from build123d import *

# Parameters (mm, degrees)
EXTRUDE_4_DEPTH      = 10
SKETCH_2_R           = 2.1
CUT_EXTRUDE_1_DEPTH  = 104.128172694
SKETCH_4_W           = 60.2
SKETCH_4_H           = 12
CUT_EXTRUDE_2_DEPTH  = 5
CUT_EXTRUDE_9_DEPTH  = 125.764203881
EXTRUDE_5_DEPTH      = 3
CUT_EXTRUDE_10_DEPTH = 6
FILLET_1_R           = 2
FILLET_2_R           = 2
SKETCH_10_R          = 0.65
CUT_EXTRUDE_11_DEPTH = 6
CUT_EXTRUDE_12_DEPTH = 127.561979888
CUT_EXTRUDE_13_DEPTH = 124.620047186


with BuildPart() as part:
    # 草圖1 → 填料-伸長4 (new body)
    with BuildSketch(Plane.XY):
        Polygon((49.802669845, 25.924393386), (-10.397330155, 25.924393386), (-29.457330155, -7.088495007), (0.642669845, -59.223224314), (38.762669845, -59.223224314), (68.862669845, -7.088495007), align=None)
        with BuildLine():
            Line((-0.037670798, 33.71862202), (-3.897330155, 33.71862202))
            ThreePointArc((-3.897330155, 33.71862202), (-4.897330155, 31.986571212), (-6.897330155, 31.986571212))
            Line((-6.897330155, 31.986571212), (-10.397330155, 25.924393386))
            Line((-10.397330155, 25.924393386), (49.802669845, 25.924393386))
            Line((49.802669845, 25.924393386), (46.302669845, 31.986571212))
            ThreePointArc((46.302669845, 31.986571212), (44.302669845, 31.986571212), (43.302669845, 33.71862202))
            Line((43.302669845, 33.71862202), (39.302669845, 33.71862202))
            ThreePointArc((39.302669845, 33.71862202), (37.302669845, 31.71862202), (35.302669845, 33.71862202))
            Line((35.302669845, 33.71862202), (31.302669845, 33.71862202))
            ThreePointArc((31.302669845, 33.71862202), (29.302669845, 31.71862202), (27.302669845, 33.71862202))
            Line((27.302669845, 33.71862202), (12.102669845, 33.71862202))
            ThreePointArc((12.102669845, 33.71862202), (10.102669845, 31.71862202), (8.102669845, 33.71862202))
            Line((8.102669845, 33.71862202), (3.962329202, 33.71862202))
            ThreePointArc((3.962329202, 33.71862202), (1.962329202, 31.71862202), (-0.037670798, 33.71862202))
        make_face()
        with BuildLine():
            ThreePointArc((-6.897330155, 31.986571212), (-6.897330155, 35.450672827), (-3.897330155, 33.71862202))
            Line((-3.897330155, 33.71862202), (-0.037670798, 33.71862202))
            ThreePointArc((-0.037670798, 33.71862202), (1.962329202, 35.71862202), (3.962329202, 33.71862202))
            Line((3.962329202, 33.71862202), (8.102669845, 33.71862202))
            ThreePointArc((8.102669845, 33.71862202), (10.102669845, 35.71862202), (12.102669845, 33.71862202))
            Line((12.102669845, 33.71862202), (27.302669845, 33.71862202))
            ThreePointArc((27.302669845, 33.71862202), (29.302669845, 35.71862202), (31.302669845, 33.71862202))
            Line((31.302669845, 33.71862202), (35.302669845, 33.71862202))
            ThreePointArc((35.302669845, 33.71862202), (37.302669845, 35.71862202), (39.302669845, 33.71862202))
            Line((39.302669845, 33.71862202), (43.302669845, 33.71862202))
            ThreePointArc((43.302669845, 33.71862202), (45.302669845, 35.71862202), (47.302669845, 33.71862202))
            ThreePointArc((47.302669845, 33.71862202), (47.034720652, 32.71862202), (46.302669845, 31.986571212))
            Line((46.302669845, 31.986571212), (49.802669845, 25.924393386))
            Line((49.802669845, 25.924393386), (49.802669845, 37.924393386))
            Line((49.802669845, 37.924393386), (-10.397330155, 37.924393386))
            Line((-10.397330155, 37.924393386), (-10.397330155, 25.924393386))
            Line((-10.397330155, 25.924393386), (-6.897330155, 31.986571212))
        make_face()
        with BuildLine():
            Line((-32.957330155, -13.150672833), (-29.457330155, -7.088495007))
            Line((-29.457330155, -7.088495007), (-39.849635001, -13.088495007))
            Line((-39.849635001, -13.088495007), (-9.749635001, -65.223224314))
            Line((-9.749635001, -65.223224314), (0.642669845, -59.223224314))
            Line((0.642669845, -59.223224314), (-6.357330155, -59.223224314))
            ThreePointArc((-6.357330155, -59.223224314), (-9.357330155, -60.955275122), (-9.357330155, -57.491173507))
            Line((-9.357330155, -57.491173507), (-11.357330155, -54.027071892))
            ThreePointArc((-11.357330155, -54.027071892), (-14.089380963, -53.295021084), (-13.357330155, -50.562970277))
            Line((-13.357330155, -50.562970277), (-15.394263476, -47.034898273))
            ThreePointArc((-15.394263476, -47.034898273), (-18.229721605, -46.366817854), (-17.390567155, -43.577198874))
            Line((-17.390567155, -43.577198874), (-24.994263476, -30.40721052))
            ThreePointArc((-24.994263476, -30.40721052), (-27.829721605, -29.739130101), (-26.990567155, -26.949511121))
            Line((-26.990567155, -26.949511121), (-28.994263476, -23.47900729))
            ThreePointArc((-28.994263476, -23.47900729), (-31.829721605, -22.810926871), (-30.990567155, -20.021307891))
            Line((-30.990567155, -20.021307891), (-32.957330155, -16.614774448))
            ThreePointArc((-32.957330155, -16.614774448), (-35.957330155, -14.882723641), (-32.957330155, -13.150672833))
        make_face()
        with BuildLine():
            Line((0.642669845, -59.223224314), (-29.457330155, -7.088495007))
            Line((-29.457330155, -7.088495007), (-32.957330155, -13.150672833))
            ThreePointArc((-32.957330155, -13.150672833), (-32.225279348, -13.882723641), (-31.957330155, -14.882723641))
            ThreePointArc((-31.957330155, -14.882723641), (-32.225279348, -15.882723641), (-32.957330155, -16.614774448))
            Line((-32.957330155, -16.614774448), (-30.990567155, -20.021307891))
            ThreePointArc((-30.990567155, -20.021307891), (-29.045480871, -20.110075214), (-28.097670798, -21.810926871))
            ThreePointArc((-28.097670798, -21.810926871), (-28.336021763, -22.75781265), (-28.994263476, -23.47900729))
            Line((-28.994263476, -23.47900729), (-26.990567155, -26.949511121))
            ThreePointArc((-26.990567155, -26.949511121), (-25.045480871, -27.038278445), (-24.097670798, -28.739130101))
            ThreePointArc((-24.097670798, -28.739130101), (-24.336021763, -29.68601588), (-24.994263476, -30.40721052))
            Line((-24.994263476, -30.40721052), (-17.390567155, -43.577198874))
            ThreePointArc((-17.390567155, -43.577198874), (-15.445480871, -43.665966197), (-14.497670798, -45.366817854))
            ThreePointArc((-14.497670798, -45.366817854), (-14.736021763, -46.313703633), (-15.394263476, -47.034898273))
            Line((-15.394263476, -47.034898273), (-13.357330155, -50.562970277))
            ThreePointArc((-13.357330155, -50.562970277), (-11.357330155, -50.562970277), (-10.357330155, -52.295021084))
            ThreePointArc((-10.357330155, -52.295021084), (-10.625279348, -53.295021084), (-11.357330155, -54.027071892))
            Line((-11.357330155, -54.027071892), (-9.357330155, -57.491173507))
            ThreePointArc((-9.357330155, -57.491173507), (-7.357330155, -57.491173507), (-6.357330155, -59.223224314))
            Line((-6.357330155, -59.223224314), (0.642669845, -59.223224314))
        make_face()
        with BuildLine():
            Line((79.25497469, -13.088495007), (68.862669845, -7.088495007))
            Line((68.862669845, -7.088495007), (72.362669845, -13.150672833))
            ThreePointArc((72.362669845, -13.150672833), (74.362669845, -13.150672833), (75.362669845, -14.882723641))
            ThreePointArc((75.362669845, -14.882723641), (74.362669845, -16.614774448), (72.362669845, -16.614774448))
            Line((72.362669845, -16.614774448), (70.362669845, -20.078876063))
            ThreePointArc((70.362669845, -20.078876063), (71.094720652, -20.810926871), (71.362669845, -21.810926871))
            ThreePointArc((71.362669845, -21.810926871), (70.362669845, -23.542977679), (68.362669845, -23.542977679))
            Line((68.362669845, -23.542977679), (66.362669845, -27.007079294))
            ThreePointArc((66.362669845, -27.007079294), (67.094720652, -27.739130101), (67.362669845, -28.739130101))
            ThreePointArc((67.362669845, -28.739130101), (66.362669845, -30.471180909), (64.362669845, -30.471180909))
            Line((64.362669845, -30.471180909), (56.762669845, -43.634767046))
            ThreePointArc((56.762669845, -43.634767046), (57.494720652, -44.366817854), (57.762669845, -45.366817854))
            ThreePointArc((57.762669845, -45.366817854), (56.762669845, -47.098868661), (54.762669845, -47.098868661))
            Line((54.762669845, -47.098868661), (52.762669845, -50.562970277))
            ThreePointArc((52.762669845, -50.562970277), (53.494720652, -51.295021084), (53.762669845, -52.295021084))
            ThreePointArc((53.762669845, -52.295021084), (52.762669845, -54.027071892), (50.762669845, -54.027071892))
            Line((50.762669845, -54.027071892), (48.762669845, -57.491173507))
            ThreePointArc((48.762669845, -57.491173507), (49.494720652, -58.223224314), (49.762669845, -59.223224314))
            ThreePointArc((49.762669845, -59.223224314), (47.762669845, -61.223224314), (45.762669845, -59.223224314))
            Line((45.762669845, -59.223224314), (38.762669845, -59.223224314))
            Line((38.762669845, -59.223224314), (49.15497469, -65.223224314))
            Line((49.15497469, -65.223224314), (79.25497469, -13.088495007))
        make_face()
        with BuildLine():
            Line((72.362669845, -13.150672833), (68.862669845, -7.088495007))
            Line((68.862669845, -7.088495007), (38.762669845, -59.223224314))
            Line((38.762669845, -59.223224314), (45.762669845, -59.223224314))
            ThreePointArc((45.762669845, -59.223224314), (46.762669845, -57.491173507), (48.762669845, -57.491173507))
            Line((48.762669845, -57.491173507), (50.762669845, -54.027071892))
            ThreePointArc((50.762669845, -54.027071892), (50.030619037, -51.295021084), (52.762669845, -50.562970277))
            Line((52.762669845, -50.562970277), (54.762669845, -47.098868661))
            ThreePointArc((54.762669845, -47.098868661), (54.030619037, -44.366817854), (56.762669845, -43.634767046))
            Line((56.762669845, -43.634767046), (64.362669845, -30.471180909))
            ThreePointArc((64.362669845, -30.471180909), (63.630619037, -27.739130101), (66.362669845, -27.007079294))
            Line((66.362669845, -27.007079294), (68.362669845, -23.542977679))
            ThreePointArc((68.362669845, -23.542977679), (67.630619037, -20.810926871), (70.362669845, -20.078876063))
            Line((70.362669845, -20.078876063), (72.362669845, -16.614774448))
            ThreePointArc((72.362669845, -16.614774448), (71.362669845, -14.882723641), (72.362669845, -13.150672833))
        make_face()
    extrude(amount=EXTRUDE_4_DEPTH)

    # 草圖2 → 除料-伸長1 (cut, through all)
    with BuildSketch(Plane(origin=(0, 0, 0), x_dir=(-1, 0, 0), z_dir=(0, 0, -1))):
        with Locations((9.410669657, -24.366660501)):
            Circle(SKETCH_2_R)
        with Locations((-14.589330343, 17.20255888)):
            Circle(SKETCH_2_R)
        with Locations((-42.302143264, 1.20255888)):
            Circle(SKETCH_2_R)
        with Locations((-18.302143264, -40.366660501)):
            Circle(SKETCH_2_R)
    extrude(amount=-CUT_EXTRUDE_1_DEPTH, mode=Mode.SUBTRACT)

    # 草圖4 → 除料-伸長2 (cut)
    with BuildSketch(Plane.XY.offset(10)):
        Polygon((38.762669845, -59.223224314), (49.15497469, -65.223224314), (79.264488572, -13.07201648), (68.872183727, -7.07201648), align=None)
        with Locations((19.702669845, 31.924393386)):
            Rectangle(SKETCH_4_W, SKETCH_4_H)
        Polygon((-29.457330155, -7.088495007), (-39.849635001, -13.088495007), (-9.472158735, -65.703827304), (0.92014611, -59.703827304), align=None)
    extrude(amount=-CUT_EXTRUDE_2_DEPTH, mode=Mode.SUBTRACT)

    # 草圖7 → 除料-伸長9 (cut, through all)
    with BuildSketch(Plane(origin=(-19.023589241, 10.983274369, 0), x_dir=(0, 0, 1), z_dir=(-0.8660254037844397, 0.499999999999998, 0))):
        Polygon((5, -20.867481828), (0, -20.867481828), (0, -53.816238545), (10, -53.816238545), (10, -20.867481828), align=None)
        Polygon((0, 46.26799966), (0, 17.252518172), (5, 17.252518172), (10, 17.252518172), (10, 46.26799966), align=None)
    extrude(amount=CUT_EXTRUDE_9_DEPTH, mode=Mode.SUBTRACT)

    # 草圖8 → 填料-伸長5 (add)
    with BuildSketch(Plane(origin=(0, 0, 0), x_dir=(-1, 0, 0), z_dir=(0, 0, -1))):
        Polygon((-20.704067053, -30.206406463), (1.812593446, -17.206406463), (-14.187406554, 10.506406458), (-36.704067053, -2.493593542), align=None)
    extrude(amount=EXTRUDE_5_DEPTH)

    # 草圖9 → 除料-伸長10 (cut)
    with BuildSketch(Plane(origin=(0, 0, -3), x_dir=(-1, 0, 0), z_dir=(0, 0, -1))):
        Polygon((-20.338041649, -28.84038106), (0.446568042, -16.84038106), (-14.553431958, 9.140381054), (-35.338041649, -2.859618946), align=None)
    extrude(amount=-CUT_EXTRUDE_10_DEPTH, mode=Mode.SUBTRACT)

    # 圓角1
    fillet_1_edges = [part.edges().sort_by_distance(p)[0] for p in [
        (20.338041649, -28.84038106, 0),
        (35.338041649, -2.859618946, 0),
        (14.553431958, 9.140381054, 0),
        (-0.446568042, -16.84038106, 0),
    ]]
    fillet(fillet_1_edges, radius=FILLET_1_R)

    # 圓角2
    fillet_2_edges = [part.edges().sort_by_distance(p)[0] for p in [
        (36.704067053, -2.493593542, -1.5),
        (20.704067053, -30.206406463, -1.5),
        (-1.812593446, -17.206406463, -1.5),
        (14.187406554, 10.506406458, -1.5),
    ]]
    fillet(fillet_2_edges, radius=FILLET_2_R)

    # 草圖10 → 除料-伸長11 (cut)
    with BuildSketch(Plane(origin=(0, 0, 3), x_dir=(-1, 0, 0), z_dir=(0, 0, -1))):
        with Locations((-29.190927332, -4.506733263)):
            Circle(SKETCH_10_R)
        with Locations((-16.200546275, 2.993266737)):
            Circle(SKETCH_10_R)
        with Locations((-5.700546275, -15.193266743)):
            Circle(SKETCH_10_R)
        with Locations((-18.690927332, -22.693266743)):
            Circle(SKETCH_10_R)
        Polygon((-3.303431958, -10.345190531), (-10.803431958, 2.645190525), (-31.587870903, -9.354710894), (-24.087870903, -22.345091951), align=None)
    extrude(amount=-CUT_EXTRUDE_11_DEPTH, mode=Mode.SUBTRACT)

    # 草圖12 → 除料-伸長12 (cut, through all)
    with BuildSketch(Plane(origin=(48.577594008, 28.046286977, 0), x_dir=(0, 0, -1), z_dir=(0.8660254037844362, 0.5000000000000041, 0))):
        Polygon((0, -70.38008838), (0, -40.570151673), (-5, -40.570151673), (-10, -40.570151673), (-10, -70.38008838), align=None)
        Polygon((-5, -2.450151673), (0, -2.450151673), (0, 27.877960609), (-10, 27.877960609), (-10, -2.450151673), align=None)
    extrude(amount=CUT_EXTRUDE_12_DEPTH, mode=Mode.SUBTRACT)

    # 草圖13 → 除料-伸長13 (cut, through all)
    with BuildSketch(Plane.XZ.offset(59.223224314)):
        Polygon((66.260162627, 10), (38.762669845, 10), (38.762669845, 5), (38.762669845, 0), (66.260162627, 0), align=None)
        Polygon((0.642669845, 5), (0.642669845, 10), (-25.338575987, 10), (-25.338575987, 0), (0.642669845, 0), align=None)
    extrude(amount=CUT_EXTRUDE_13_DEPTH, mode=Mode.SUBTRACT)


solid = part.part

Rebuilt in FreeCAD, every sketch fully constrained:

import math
import FreeCAD as App
import Part
import Sketcher
Q = App.Units.Quantity


def edges_at(feature, points):
    """Names of the edges that pass closest to the given points."""
    edges = feature.Shape.Edges
    near = lambda p: min(range(len(edges)), key=lambda i: edges[i].distToShape(Part.Vertex(*p))[0])
    return sorted({f"Edge{near(p) + 1}" for p in points})


def add_polygon(sketch, points):
    """Adds a closed chain of lines whose ends are joined by coincident constraints."""
    first, n = sketch.GeometryCount, len(points)
    for a, b in zip(points, points[1:] + points[:1]):
        sketch.addGeometry(Part.LineSegment(App.Vector(*a, 0), App.Vector(*b, 0)), False)
    for i in range(n):
        sketch.addConstraint(Sketcher.Constraint("Coincident", first + i, 2, first + (i + 1) % n, 1))

doc = App.newDocument("Part")
body = doc.addObject("PartDesign::Body", "Body")

sketch1 = body.newObject("Sketcher::SketchObject", "Sketch")
sketch1.AttachmentSupport = (doc.getObject("XY_Plane"), [""])
sketch1.MapMode = "FlatFace"
add_polygon(sketch1, [(-10.4, 25.9), (-29.5, -7.1), (-39.8, -13.1), (-9.7, -65.2), (0.6, -59.2), (38.8, -59.2), (49.2, -65.2), (79.3, -13.1), (68.9, -7.1), (49.8, 25.9), (49.8, 37.9), (-10.4, 37.9)])
sketch1.addGeometry(Part.ArcOfCircle(Part.Circle(App.Vector(45.3, 33.7, 0), App.Vector(0, 0, 1), 2), math.radians(180), math.radians(300)), False)
sketch1.addGeometry(Part.ArcOfCircle(Part.Circle(App.Vector(45.3, 33.7, 0), App.Vector(0, 0, 1), 2), math.radians(0), math.radians(180)), False)
sketch1.addGeometry(Part.ArcOfCircle(Part.Circle(App.Vector(45.3, 33.7, 0), App.Vector(0, 0, 1), 2), math.radians(-60), math.radians(0)), False)
sketch1.addGeometry(Part.Circle(App.Vector(37.3, 33.7, 0), App.Vector(0, 0, 1), 2), False)
sketch1.addGeometry(Part.Circle(App.Vector(29.3, 33.7, 0), App.Vector(0, 0, 1), 2), False)
sketch1.addGeometry(Part.Circle(App.Vector(10.1, 33.7, 0), App.Vector(0, 0, 1), 2), False)
sketch1.addGeometry(Part.Circle(App.Vector(2, 33.7, 0), App.Vector(0, 0, 1), 2), False)
sketch1.addGeometry(Part.ArcOfCircle(Part.Circle(App.Vector(-5.9, 33.7, 0), App.Vector(0, 0, 1), 2), math.radians(-120), math.radians(0)), False)
sketch1.addGeometry(Part.ArcOfCircle(Part.Circle(App.Vector(-5.9, 33.7, 0), App.Vector(0, 0, 1), 2), math.radians(0), math.radians(240)), False)
sketch1.addGeometry(Part.ArcOfCircle(Part.Circle(App.Vector(-34, -14.9, 0), App.Vector(0, 0, 1), 2), math.radians(0), math.radians(60)), False)
sketch1.addGeometry(Part.ArcOfCircle(Part.Circle(App.Vector(-34, -14.9, 0), App.Vector(0, 0, 1), 2), math.radians(-60), math.radians(0)), False)
sketch1.addGeometry(Part.ArcOfCircle(Part.Circle(App.Vector(-34, -14.9, 0), App.Vector(0, 0, 1), 2), math.radians(60), math.radians(300)), False)
sketch1.addGeometry(Part.ArcOfCircle(Part.Circle(App.Vector(-30.1, -21.8, 0), App.Vector(0, 0, 1), 2), math.radians(0), math.radians(117)), False)
sketch1.addGeometry(Part.ArcOfCircle(Part.Circle(App.Vector(-30.1, -21.8, 0), App.Vector(0, 0, 1), 2), math.radians(-57), math.radians(0)), False)
sketch1.addGeometry(Part.ArcOfCircle(Part.Circle(App.Vector(-30.1, -21.8, 0), App.Vector(0, 0, 1), 2), math.radians(117), math.radians(303)), False)
sketch1.addGeometry(Part.ArcOfCircle(Part.Circle(App.Vector(-26.1, -28.7, 0), App.Vector(0, 0, 1), 2), math.radians(0), math.radians(117)), False)
sketch1.addGeometry(Part.ArcOfCircle(Part.Circle(App.Vector(-26.1, -28.7, 0), App.Vector(0, 0, 1), 2), math.radians(-57), math.radians(0)), False)
sketch1.addGeometry(Part.ArcOfCircle(Part.Circle(App.Vector(-26.1, -28.7, 0), App.Vector(0, 0, 1), 2), math.radians(117), math.radians(303)), False)
sketch1.addGeometry(Part.ArcOfCircle(Part.Circle(App.Vector(-16.5, -45.4, 0), App.Vector(0, 0, 1), 2), math.radians(0), math.radians(117)), False)
sketch1.addGeometry(Part.ArcOfCircle(Part.Circle(App.Vector(-16.5, -45.4, 0), App.Vector(0, 0, 1), 2), math.radians(-57), math.radians(0)), False)
sketch1.addGeometry(Part.ArcOfCircle(Part.Circle(App.Vector(-16.5, -45.4, 0), App.Vector(0, 0, 1), 2), math.radians(117), math.radians(303)), False)
sketch1.addGeometry(Part.ArcOfCircle(Part.Circle(App.Vector(-12.4, -52.3, 0), App.Vector(0, 0, 1), 2), math.radians(0), math.radians(120)), False)
sketch1.addGeometry(Part.ArcOfCircle(Part.Circle(App.Vector(-12.4, -52.3, 0), App.Vector(0, 0, 1), 2), math.radians(-60), math.radians(0)), False)
sketch1.addGeometry(Part.ArcOfCircle(Part.Circle(App.Vector(-12.4, -52.3, 0), App.Vector(0, 0, 1), 2), math.radians(120), math.radians(300)), False)
sketch1.addGeometry(Part.ArcOfCircle(Part.Circle(App.Vector(-8.4, -59.2, 0), App.Vector(0, 0, 1), 2), math.radians(0), math.radians(120)), False)
sketch1.addGeometry(Part.ArcOfCircle(Part.Circle(App.Vector(-8.4, -59.2, 0), App.Vector(0, 0, 1), 2), math.radians(120), math.radians(360)), False)
sketch1.addGeometry(Part.ArcOfCircle(Part.Circle(App.Vector(73.4, -14.9, 0), App.Vector(0, 0, 1), 2), math.radians(120), math.radians(240)), False)
sketch1.addGeometry(Part.ArcOfCircle(Part.Circle(App.Vector(73.4, -14.9, 0), App.Vector(0, 0, 1), 2), math.radians(0), math.radians(120)), False)
sketch1.addGeometry(Part.ArcOfCircle(Part.Circle(App.Vector(73.4, -14.9, 0), App.Vector(0, 0, 1), 2), math.radians(-120), math.radians(0)), False)
sketch1.addGeometry(Part.ArcOfCircle(Part.Circle(App.Vector(47.8, -59.2, 0), App.Vector(0, 0, 1), 2), math.radians(60), math.radians(180)), False)
sketch1.addGeometry(Part.ArcOfCircle(Part.Circle(App.Vector(47.8, -59.2, 0), App.Vector(0, 0, 1), 2), math.radians(0), math.radians(60)), False)
sketch1.addGeometry(Part.ArcOfCircle(Part.Circle(App.Vector(47.8, -59.2, 0), App.Vector(0, 0, 1), 2), math.radians(180), math.radians(360)), False)
sketch1.addGeometry(Part.ArcOfCircle(Part.Circle(App.Vector(51.8, -52.3, 0), App.Vector(0, 0, 1), 2), math.radians(60), math.radians(240)), False)
sketch1.addGeometry(Part.ArcOfCircle(Part.Circle(App.Vector(51.8, -52.3, 0), App.Vector(0, 0, 1), 2), math.radians(0), math.radians(60)), False)
sketch1.addGeometry(Part.ArcOfCircle(Part.Circle(App.Vector(51.8, -52.3, 0), App.Vector(0, 0, 1), 2), math.radians(-120), math.radians(0)), False)
sketch1.addGeometry(Part.ArcOfCircle(Part.Circle(App.Vector(55.8, -45.4, 0), App.Vector(0, 0, 1), 2), math.radians(60), math.radians(240)), False)
sketch1.addGeometry(Part.ArcOfCircle(Part.Circle(App.Vector(55.8, -45.4, 0), App.Vector(0, 0, 1), 2), math.radians(0), math.radians(60)), False)
sketch1.addGeometry(Part.ArcOfCircle(Part.Circle(App.Vector(55.8, -45.4, 0), App.Vector(0, 0, 1), 2), math.radians(-120), math.radians(0)), False)
sketch1.addGeometry(Part.ArcOfCircle(Part.Circle(App.Vector(65.4, -28.7, 0), App.Vector(0, 0, 1), 2), math.radians(60), math.radians(240)), False)
sketch1.addGeometry(Part.ArcOfCircle(Part.Circle(App.Vector(65.4, -28.7, 0), App.Vector(0, 0, 1), 2), math.radians(0), math.radians(60)), False)
sketch1.addGeometry(Part.ArcOfCircle(Part.Circle(App.Vector(65.4, -28.7, 0), App.Vector(0, 0, 1), 2), math.radians(-120), math.radians(0)), False)
sketch1.addGeometry(Part.ArcOfCircle(Part.Circle(App.Vector(69.4, -21.8, 0), App.Vector(0, 0, 1), 2), math.radians(60), math.radians(240)), False)
sketch1.addGeometry(Part.ArcOfCircle(Part.Circle(App.Vector(69.4, -21.8, 0), App.Vector(0, 0, 1), 2), math.radians(0), math.radians(60)), False)
sketch1.addGeometry(Part.ArcOfCircle(Part.Circle(App.Vector(69.4, -21.8, 0), App.Vector(0, 0, 1), 2), math.radians(-120), math.radians(0)), False)
sketch1.addConstraint(Sketcher.Constraint("Tangent", 12, 1, 13, 2))
sketch1.addConstraint(Sketcher.Constraint("Tangent", 13, 1, 14, 2))
sketch1.addConstraint(Sketcher.Constraint("Tangent", 14, 1, 12, 2))
sketch1.addConstraint(Sketcher.Constraint("Tangent", 19, 1, 20, 2))
sketch1.addConstraint(Sketcher.Constraint("Coincident", 20, 1, 19, 2))
sketch1.addConstraint(Sketcher.Constraint("Tangent", 21, 1, 22, 2))
sketch1.addConstraint(Sketcher.Constraint("Tangent", 22, 1, 23, 2))
sketch1.addConstraint(Sketcher.Constraint("Tangent", 23, 1, 21, 2))
sketch1.addConstraint(Sketcher.Constraint("Tangent", 24, 1, 25, 2))
sketch1.addConstraint(Sketcher.Constraint("Tangent", 25, 1, 26, 2))
sketch1.addConstraint(Sketcher.Constraint("Tangent", 26, 1, 24, 2))
sketch1.addConstraint(Sketcher.Constraint("Tangent", 27, 1, 28, 2))
sketch1.addConstraint(Sketcher.Constraint("Tangent", 28, 1, 29, 2))
sketch1.addConstraint(Sketcher.Constraint("Tangent", 29, 1, 27, 2))
sketch1.addConstraint(Sketcher.Constraint("Tangent", 30, 1, 31, 2))
sketch1.addConstraint(Sketcher.Constraint("Tangent", 31, 1, 32, 2))
sketch1.addConstraint(Sketcher.Constraint("Tangent", 32, 1, 30, 2))
sketch1.addConstraint(Sketcher.Constraint("Tangent", 33, 1, 34, 2))
sketch1.addConstraint(Sketcher.Constraint("Tangent", 34, 1, 35, 2))
sketch1.addConstraint(Sketcher.Constraint("Tangent", 35, 1, 33, 2))
sketch1.addConstraint(Sketcher.Constraint("Tangent", 36, 1, 37, 2))
sketch1.addConstraint(Sketcher.Constraint("Coincident", 37, 1, 36, 2))
sketch1.addConstraint(Sketcher.Constraint("Tangent", 38, 1, 39, 2))
sketch1.addConstraint(Sketcher.Constraint("Tangent", 39, 1, 40, 2))
sketch1.addConstraint(Sketcher.Constraint("Tangent", 40, 1, 38, 2))
sketch1.addConstraint(Sketcher.Constraint("Tangent", 41, 1, 42, 2))
sketch1.addConstraint(Sketcher.Constraint("Tangent", 42, 1, 43, 2))
sketch1.addConstraint(Sketcher.Constraint("Tangent", 43, 1, 41, 2))
sketch1.addConstraint(Sketcher.Constraint("Tangent", 44, 1, 45, 2))
sketch1.addConstraint(Sketcher.Constraint("Tangent", 45, 1, 46, 2))
sketch1.addConstraint(Sketcher.Constraint("Tangent", 46, 1, 44, 2))
sketch1.addConstraint(Sketcher.Constraint("Tangent", 47, 1, 48, 2))
sketch1.addConstraint(Sketcher.Constraint("Tangent", 48, 1, 49, 2))
sketch1.addConstraint(Sketcher.Constraint("Tangent", 49, 1, 47, 2))
sketch1.addConstraint(Sketcher.Constraint("Tangent", 50, 1, 51, 2))
sketch1.addConstraint(Sketcher.Constraint("Tangent", 51, 1, 52, 2))
sketch1.addConstraint(Sketcher.Constraint("Tangent", 52, 1, 50, 2))
sketch1.addConstraint(Sketcher.Constraint("Tangent", 53, 1, 54, 2))
sketch1.addConstraint(Sketcher.Constraint("Tangent", 54, 1, 55, 2))
sketch1.addConstraint(Sketcher.Constraint("Tangent", 55, 1, 53, 2))
sketch1.addConstraint(Sketcher.Constraint("Horizontal", 4))
sketch1.addConstraint(Sketcher.Constraint("Vertical", 9))
sketch1.addConstraint(Sketcher.Constraint("Horizontal", 10))
sketch1.addConstraint(Sketcher.Constraint("Vertical", 11))
sketch1.addConstraint(Sketcher.Constraint("Equal", 14, 15))
sketch1.addConstraint(Sketcher.Constraint("Equal", 15, 16))
sketch1.addConstraint(Sketcher.Constraint("Equal", 16, 17))
sketch1.addConstraint(Sketcher.Constraint("Equal", 17, 18))
sketch1.addConstraint(Sketcher.Constraint("Equal", 18, 19))
sketch1.addConstraint(Sketcher.Constraint("Equal", 20, 21))
sketch1.addConstraint(Sketcher.Constraint("Equal", 23, 24))
sketch1.addConstraint(Sketcher.Constraint("Equal", 26, 27))
sketch1.addConstraint(Sketcher.Constraint("Equal", 29, 30))
sketch1.addConstraint(Sketcher.Constraint("Equal", 32, 33))
sketch1.addConstraint(Sketcher.Constraint("Equal", 35, 36))
sketch1.addConstraint(Sketcher.Constraint("Equal", 37, 38))
sketch1.addConstraint(Sketcher.Constraint("Equal", 40, 41))
sketch1.addConstraint(Sketcher.Constraint("Equal", 43, 44))
sketch1.addConstraint(Sketcher.Constraint("Equal", 46, 47))
sketch1.addConstraint(Sketcher.Constraint("Equal", 49, 50))
sketch1.addConstraint(Sketcher.Constraint("Equal", 52, 53))
sketch1.addConstraint(Sketcher.Constraint("Perpendicular", 1, 2))
sketch1.addConstraint(Sketcher.Constraint("Perpendicular", 2, 3))
sketch1.addConstraint(Sketcher.Constraint("Perpendicular", 0, 5))
sketch1.addConstraint(Sketcher.Constraint("Perpendicular", 5, 6))
sketch1.addConstraint(Sketcher.Constraint("Perpendicular", 6, 7))
sketch1.addConstraint(Sketcher.Constraint("Perpendicular", 3, 8))
sketch1.addConstraint(Sketcher.Constraint("Horizontal", 14, 3, 15, 3))
sketch1.addConstraint(Sketcher.Constraint("Horizontal", 15, 3, 16, 3))
sketch1.addConstraint(Sketcher.Constraint("Horizontal", 16, 3, 17, 3))
sketch1.addConstraint(Sketcher.Constraint("Horizontal", 17, 3, 18, 3))
sketch1.addConstraint(Sketcher.Constraint("Horizontal", 18, 3, 19, 3))
sketch1.addConstraint(Sketcher.Constraint("Horizontal", 23, 3, 38, 3))
sketch1.addConstraint(Sketcher.Constraint("Horizontal", 37, 3, 41, 3))
sketch1.addConstraint(Sketcher.Constraint("Horizontal", 35, 3, 44, 3))
sketch1.addConstraint(Sketcher.Constraint("Horizontal", 32, 3, 47, 3))
sketch1.addConstraint(Sketcher.Constraint("Horizontal", 29, 3, 50, 3))
sketch1.addConstraint(Sketcher.Constraint("Horizontal", 26, 3, 53, 3))
sketch1.addConstraint(Sketcher.Constraint("Horizontal", 43, 3, 3, 2))
sketch1.addConstraint(Sketcher.Constraint("Horizontal", 2, 2, 5, 2))
sketch1.addConstraint(Sketcher.Constraint("Horizontal", 1, 2, 6, 2))
sketch1.addConstraint(Sketcher.Constraint("Horizontal", 0, 2, 7, 2))
sketch1.addConstraint(Sketcher.Constraint("Horizontal", 8, 2, 11, 2))
sketch1.addConstraint(Sketcher.Constraint("Horizontal", 20, 3, 12, 1))
sketch1.addConstraint(Sketcher.Constraint("Horizontal", 12, 1, 13, 1))
sketch1.addConstraint(Sketcher.Constraint("Horizontal", 14, 1, 19, 1))
sketch1.addConstraint(Sketcher.Constraint("Horizontal", 13, 1, 20, 1))
sketch1.addConstraint(Sketcher.Constraint("Horizontal", 40, 3, 21, 1))
sketch1.addConstraint(Sketcher.Constraint("Horizontal", 55, 3, 24, 1))
sketch1.addConstraint(Sketcher.Constraint("Horizontal", 52, 3, 27, 1))
sketch1.addConstraint(Sketcher.Constraint("Horizontal", 49, 3, 30, 1))
sketch1.addConstraint(Sketcher.Constraint("Horizontal", 46, 3, 33, 1))
sketch1.addConstraint(Sketcher.Constraint("Horizontal", 4, 2, 36, 1))
sketch1.addConstraint(Sketcher.Constraint("Horizontal", 23, 1, 38, 1))
sketch1.addConstraint(Sketcher.Constraint("Horizontal", 21, 1, 39, 1))
sketch1.addConstraint(Sketcher.Constraint("Horizontal", 22, 1, 40, 1))
sketch1.addConstraint(Sketcher.Constraint("Horizontal", 37, 1, 41, 1))
sketch1.addConstraint(Sketcher.Constraint("Horizontal", 36, 1, 42, 1))
sketch1.addConstraint(Sketcher.Constraint("Horizontal", 42, 1, 43, 1))
sketch1.addConstraint(Sketcher.Constraint("Horizontal", 35, 1, 44, 1))
sketch1.addConstraint(Sketcher.Constraint("Horizontal", 33, 1, 45, 1))
sketch1.addConstraint(Sketcher.Constraint("Horizontal", 34, 1, 46, 1))
sketch1.addConstraint(Sketcher.Constraint("Horizontal", 30, 1, 48, 1))
sketch1.addConstraint(Sketcher.Constraint("Horizontal", 27, 1, 51, 1))
sketch1.addConstraint(Sketcher.Constraint("Horizontal", 24, 1, 54, 1))
sketch1.addConstraint(Sketcher.Constraint("Vertical", 22, 1, 23, 1))
sketch1.addConstraint(Sketcher.Constraint("Equal", 1, 3))
sketch1.addConstraint(Sketcher.Constraint("Equal", 3, 5))
sketch1.addConstraint(Sketcher.Constraint("Diameter", 15, 4.0))
sketch1.addConstraint(Sketcher.Constraint("DistanceY", 9, 1, 9, 2, 12.0))
sketch1.addConstraint(Sketcher.Constraint("Angle", 0, Q("-120 deg")))
sketch1.addConstraint(Sketcher.Constraint("Distance", 1, 12.0))
sketch1.addConstraint(Sketcher.Constraint("DistanceX", 10, 2, 10, 1, 60.2))
sketch1.addConstraint(Sketcher.Constraint("Distance", 2, 60.2))
sketch1.addConstraint(Sketcher.Constraint("DistanceX", 4, 1, 4, 2, 38.12))
sketch1.addConstraint(Sketcher.Constraint("DistanceY", 31, 1, -1, 1, 47.034898))
sketch1.addConstraint(Sketcher.Constraint("DistanceY", 32, 1, -1, 1, 43.577199))
sketch1.addConstraint(Sketcher.Constraint("DistanceX", -1, 1, 12, 3, 45.30267))
sketch1.addConstraint(Sketcher.Constraint("DistanceX", -1, 1, 15, 3, 37.30267))
sketch1.addConstraint(Sketcher.Constraint("DistanceX", -1, 1, 16, 3, 29.30267))
sketch1.addConstraint(Sketcher.Constraint("DistanceX", -1, 1, 17, 3, 10.10267))
sketch1.addConstraint(Sketcher.Constraint("DistanceX", -1, 1, 18, 3, 1.962329))
sketch1.addConstraint(Sketcher.Constraint("DistanceX", 19, 3, -1, 1, 5.89733))
sketch1.addConstraint(Sketcher.Constraint("DistanceX", 21, 3, -1, 1, 33.95733))
sketch1.addConstraint(Sketcher.Constraint("DistanceX", 24, 3, -1, 1, 30.097671))
sketch1.addConstraint(Sketcher.Constraint("DistanceX", 27, 3, -1, 1, 26.097671))
sketch1.addConstraint(Sketcher.Constraint("DistanceY", 27, 3, -1, 1, 28.73913))
sketch1.addConstraint(Sketcher.Constraint("DistanceX", 30, 3, -1, 1, 16.497671))
sketch1.addConstraint(Sketcher.Constraint("DistanceX", 33, 3, -1, 1, 12.35733))
sketch1.addConstraint(Sketcher.Constraint("DistanceY", 33, 3, -1, 1, 52.295021))
sketch1.addConstraint(Sketcher.Constraint("DistanceX", 36, 3, -1, 1, 8.35733))
sketch1.addConstraint(Sketcher.Constraint("DistanceX", -1, 1, 38, 3, 73.36267))
sketch1.addConstraint(Sketcher.Constraint("DistanceX", -1, 1, 41, 3, 47.76267))
sketch1.addConstraint(Sketcher.Constraint("DistanceX", -1, 1, 44, 3, 51.76267))
sketch1.addConstraint(Sketcher.Constraint("DistanceX", -1, 1, 47, 3, 55.76267))
sketch1.addConstraint(Sketcher.Constraint("DistanceX", -1, 1, 50, 3, 65.36267))
sketch1.addConstraint(Sketcher.Constraint("DistanceX", -1, 1, 53, 3, 69.36267))
sketch1.addConstraint(Sketcher.Constraint("DistanceX", 0, 2, -1, 1, 29.45733))
sketch1.addConstraint(Sketcher.Constraint("DistanceX", -1, 1, 14, 1, 46.30267))
sketch1.addConstraint(Sketcher.Constraint("DistanceY", -1, 1, 14, 1, 31.986571))
sketch1.addConstraint(Sketcher.Constraint("DistanceX", 22, 1, -1, 1, 32.95733))
sketch1.addConstraint(Sketcher.Constraint("DistanceY", 28, 1, -1, 1, 30.407211))
sketch1.addConstraint(Sketcher.Constraint("DistanceY", 29, 1, -1, 1, 26.949511))
sketch1.addConstraint(Sketcher.Constraint("DistanceX", 34, 1, -1, 1, 11.35733))
sketch1.addConstraint(Sketcher.Constraint("DistanceX", 35, 1, -1, 1, 13.35733))
sketch1.addConstraint(Sketcher.Constraint("DistanceX", 37, 1, -1, 1, 9.35733))
sketch1.addConstraint(Sketcher.Constraint("DistanceX", -1, 1, 47, 1, 56.76267))
sketch1.addConstraint(Sketcher.Constraint("DistanceX", -1, 1, 49, 1, 54.76267))
sketch1.addConstraint(Sketcher.Constraint("DistanceY", 49, 1, -1, 1, 47.098869))
sketch1.addConstraint(Sketcher.Constraint("DistanceX", -1, 1, 50, 1, 66.36267))
sketch1.addConstraint(Sketcher.Constraint("DistanceX", -1, 1, 52, 1, 64.36267))
sketch1.addConstraint(Sketcher.Constraint("DistanceX", -1, 1, 53, 1, 70.36267))
sketch1.addConstraint(Sketcher.Constraint("DistanceX", -1, 1, 55, 1, 68.36267))
sketch1.addConstraint(Sketcher.Constraint("DistanceY", 21, 3, -1, 1, 14.882724))
sketch1.addConstraint(Sketcher.Constraint("DistanceY", 24, 3, -1, 1, 21.810927))
sketch1.addConstraint(Sketcher.Constraint("DistanceY", 36, 3, -1, 1, 59.223224))
sketch1.addConstraint(Sketcher.Constraint("DistanceX", 25, 1, -1, 1, 28.994263))
sketch1.addConstraint(Sketcher.Constraint("DistanceX", 26, 1, -1, 1, 30.990567))
pad1 = body.newObject("PartDesign::Pad", "Pad")
pad1.Profile = sketch1
pad1.Length = 10

sketch2 = body.newObject("Sketcher::SketchObject", "Sketch001")
sketch2.AttachmentSupport = (doc.getObject("XY_Plane"), [""])
sketch2.MapMode = "FlatFace"
sketch2.addGeometry(Part.Circle(App.Vector(-9.4, -24.4, 0), App.Vector(0, 0, 1), 2.1), False)
sketch2.addGeometry(Part.Circle(App.Vector(14.6, 17.2, 0), App.Vector(0, 0, 1), 2.1), False)
sketch2.addGeometry(Part.Circle(App.Vector(42.3, 1.2, 0), App.Vector(0, 0, 1), 2.1), False)
sketch2.addGeometry(Part.Circle(App.Vector(18.3, -40.4, 0), App.Vector(0, 0, 1), 2.1), False)
sketch2.addConstraint(Sketcher.Constraint("Equal", 0, 1))
sketch2.addConstraint(Sketcher.Constraint("Equal", 1, 2))
sketch2.addConstraint(Sketcher.Constraint("Equal", 2, 3))
sketch2.addConstraint(Sketcher.Constraint("Diameter", 0, 4.2))
sketch2.addConstraint(Sketcher.Constraint("DistanceX", 0, 3, 1, 3, 24.0))
sketch2.addConstraint(Sketcher.Constraint("DistanceY", 2, 3, 1, 3, 16.0))
sketch2.addConstraint(Sketcher.Constraint("DistanceY", 3, 3, 0, 3, 16.0))
sketch2.addConstraint(Sketcher.Constraint("DistanceX", 3, 3, 2, 3, 24.0))
sketch2.addConstraint(Sketcher.Constraint("DistanceX", 0, 3, -1, 1, 9.41067))
sketch2.addConstraint(Sketcher.Constraint("DistanceY", 0, 3, -1, 1, 24.366661))
sketch2.addConstraint(Sketcher.Constraint("DistanceY", -1, 1, 1, 3, 17.202559))
sketch2.addConstraint(Sketcher.Constraint("DistanceX", -1, 1, 2, 3, 42.302143))
pocket1 = body.newObject("PartDesign::Pocket", "Pocket")
pocket1.Profile = sketch2
pocket1.Type = "ThroughAll"
pocket1.Reversed = True

sketch3 = body.newObject("Sketcher::SketchObject", "Sketch002")
sketch3.AttachmentSupport = (doc.getObject("XY_Plane"), [""])
sketch3.MapMode = "FlatFace"
sketch3.AttachmentOffset = App.Placement(App.Vector(0, 0, 10), App.Rotation())
add_polygon(sketch3, [(39, -59), (49, -65), (79, -13), (69, -7)])
add_polygon(sketch3, [(-10, 38), (-10, 26), (50, 26), (50, 38)])
add_polygon(sketch3, [(-29, -7), (-40, -13), (-9, -66), (1, -60)])
sketch3.addConstraint(Sketcher.Constraint("Vertical", 4))
sketch3.addConstraint(Sketcher.Constraint("Horizontal", 5))
sketch3.addConstraint(Sketcher.Constraint("Vertical", 6))
sketch3.addConstraint(Sketcher.Constraint("Horizontal", 7))
sketch3.addConstraint(Sketcher.Constraint("Perpendicular", 0, 1))
sketch3.addConstraint(Sketcher.Constraint("Perpendicular", 1, 2))
sketch3.addConstraint(Sketcher.Constraint("Perpendicular", 2, 3))
sketch3.addConstraint(Sketcher.Constraint("Perpendicular", 8, 9))
sketch3.addConstraint(Sketcher.Constraint("Perpendicular", 9, 10))
sketch3.addConstraint(Sketcher.Constraint("Perpendicular", 10, 11))
sketch3.addConstraint(Sketcher.Constraint("Equal", 2, 8))
sketch3.addConstraint(Sketcher.Constraint("DistanceY", 4, 2, 4, 1, 12.0))
sketch3.addConstraint(Sketcher.Constraint("Angle", 0, Q("-30 deg")))
sketch3.addConstraint(Sketcher.Constraint("Angle", 8, Q("-150 deg")))
sketch3.addConstraint(Sketcher.Constraint("Distance", 0, 12.0))
sketch3.addConstraint(Sketcher.Constraint("DistanceX", 5, 1, 5, 2, 60.2))
sketch3.addConstraint(Sketcher.Constraint("DistanceX", 4, 2, 3, 2, 49.16))
sketch3.addConstraint(Sketcher.Constraint("DistanceX", 11, 2, 4, 2, 19.06))
sketch3.addConstraint(Sketcher.Constraint("DistanceX", -1, 1, 1, 2, 79.264489))
sketch3.addConstraint(Sketcher.Constraint("DistanceX", -1, 1, 3, 2, 38.76267))
sketch3.addConstraint(Sketcher.Constraint("DistanceX", 9, 2, -1, 1, 9.472159))
sketch3.addConstraint(Sketcher.Constraint("DistanceY", 2, 2, 4, 2, 32.99641))
sketch3.addConstraint(Sketcher.Constraint("DistanceY", 8, 2, 4, 2, 39.012888))
sketch3.addConstraint(Sketcher.Constraint("DistanceY", 0, 2, -1, 1, 65.223224))
pocket2 = body.newObject("PartDesign::Pocket", "Pocket001")
pocket2.Profile = sketch3
pocket2.Length = 5

sketch4 = body.newObject("Sketcher::SketchObject", "Sketch003")
sketch4.Placement = App.Placement(App.Vector(-19.023589, 10.983274, 0), App.Rotation(App.Vector(0, 0, 1), App.Vector(0.5, 0.866025404, 0), App.Vector(-0.866025404, 0.5, 0), "ZXY"))
add_polygon(sketch4, [(0, -21), (0, -54), (10, -54), (10, -21)])
add_polygon(sketch4, [(0, 46), (0, 17), (10, 17), (10, 46)])
sketch4.addConstraint(Sketcher.Constraint("Vertical", 0))
sketch4.addConstraint(Sketcher.Constraint("Horizontal", 1))
sketch4.addConstraint(Sketcher.Constraint("Vertical", 2))
sketch4.addConstraint(Sketcher.Constraint("Horizontal", 3))
sketch4.addConstraint(Sketcher.Constraint("Vertical", 4))
sketch4.addConstraint(Sketcher.Constraint("Horizontal", 5))
sketch4.addConstraint(Sketcher.Constraint("Vertical", 6))
sketch4.addConstraint(Sketcher.Constraint("Horizontal", 7))
sketch4.addConstraint(Sketcher.Constraint("PointOnObject", 0, 2, -2))
sketch4.addConstraint(Sketcher.Constraint("PointOnObject", 4, 2, -2))
sketch4.addConstraint(Sketcher.Constraint("Vertical", 2, 2, 5, 2))
sketch4.addConstraint(Sketcher.Constraint("DistanceX", 1, 1, 1, 2, 10.0))
sketch4.addConstraint(Sketcher.Constraint("DistanceY", 3, 2, 4, 2, 38.12))
sketch4.addConstraint(Sketcher.Constraint("DistanceY", -1, 1, 6, 2, 46.268))
sketch4.addConstraint(Sketcher.Constraint("DistanceY", 4, 2, 4, 1, 29.015481))
sketch4.addConstraint(Sketcher.Constraint("DistanceY", 0, 2, 0, 1, 32.948757))
pocket3 = body.newObject("PartDesign::Pocket", "Pocket002")
pocket3.Profile = sketch4
pocket3.Type = "ThroughAll"
pocket3.Reversed = True

sketch5 = body.newObject("Sketcher::SketchObject", "Sketch004")
sketch5.AttachmentSupport = (doc.getObject("XY_Plane"), [""])
sketch5.MapMode = "FlatFace"
add_polygon(sketch5, [(21, -30), (-2, -17), (14, 11), (37, -2)])
sketch5.addConstraint(Sketcher.Constraint("Perpendicular", 0, 1))
sketch5.addConstraint(Sketcher.Constraint("Perpendicular", 1, 2))
sketch5.addConstraint(Sketcher.Constraint("Perpendicular", 2, 3))
sketch5.addConstraint(Sketcher.Constraint("Angle", 0, Q("150 deg")))
sketch5.addConstraint(Sketcher.Constraint("Distance", 0, 26.0))
sketch5.addConstraint(Sketcher.Constraint("Distance", 1, 32.0))
sketch5.addConstraint(Sketcher.Constraint("DistanceX", 0, 2, -1, 1, 1.812593))
sketch5.addConstraint(Sketcher.Constraint("DistanceY", 0, 2, -1, 1, 17.206406))
pad2 = body.newObject("PartDesign::Pad", "Pad001")
pad2.Profile = sketch5
pad2.Length = 3
pad2.Reversed = True

sketch6 = body.newObject("Sketcher::SketchObject", "Sketch005")
sketch6.AttachmentSupport = (doc.getObject("XY_Plane"), [""])
sketch6.MapMode = "FlatFace"
sketch6.AttachmentOffset = App.Placement(App.Vector(0, 0, -3), App.Rotation())
add_polygon(sketch6, [(20, -29), (0, -17), (15, 9), (35, -3)])
sketch6.addConstraint(Sketcher.Constraint("Perpendicular", 0, 1))
sketch6.addConstraint(Sketcher.Constraint("Perpendicular", 1, 2))
sketch6.addConstraint(Sketcher.Constraint("Perpendicular", 2, 3))
sketch6.addConstraint(Sketcher.Constraint("Angle", 0, Q("150 deg")))
sketch6.addConstraint(Sketcher.Constraint("Distance", 0, 24.0))
sketch6.addConstraint(Sketcher.Constraint("Distance", 1, 30.0))
sketch6.addConstraint(Sketcher.Constraint("DistanceX", 0, 2, -1, 1, 0.446568))
sketch6.addConstraint(Sketcher.Constraint("DistanceY", 0, 2, -1, 1, 16.840381))
pocket4 = body.newObject("PartDesign::Pocket", "Pocket003")
pocket4.Profile = sketch6
pocket4.Length = 6
pocket4.Reversed = True
doc.recompute()

fillet = body.newObject("PartDesign::Fillet", "Fillet")
fillet.Base = (pocket4, edges_at(pocket4, [
    (20.338, -28.84, 0),
    (35.338, -2.86, 0),
    (14.553, 9.14, 0),
    (-0.447, -16.84, 0),
]))
fillet.Radius = 2
doc.recompute()

fillet2 = body.newObject("PartDesign::Fillet", "Fillet001")
fillet2.Base = (fillet, edges_at(fillet, [
    (36.704, -2.494, -1.5),
    (20.704, -30.206, -1.5),
    (-1.813, -17.206, -1.5),
    (14.187, 10.506, -1.5),
]))
fillet2.Radius = 2

sketch7 = body.newObject("Sketcher::SketchObject", "Sketch006")
sketch7.AttachmentSupport = (doc.getObject("XY_Plane"), [""])
sketch7.MapMode = "FlatFace"
sketch7.AttachmentOffset = App.Placement(App.Vector(0, 0, 3), App.Rotation())
sketch7.addGeometry(Part.Circle(App.Vector(29.2, -4.5, 0), App.Vector(0, 0, 1), 0.7), False)
sketch7.addGeometry(Part.Circle(App.Vector(16.2, 3, 0), App.Vector(0, 0, 1), 0.7), False)
sketch7.addGeometry(Part.Circle(App.Vector(5.7, -15.2, 0), App.Vector(0, 0, 1), 0.7), False)
sketch7.addGeometry(Part.Circle(App.Vector(18.7, -22.7, 0), App.Vector(0, 0, 1), 0.7), False)
add_polygon(sketch7, [(3.3, -10.3), (10.8, 2.6), (31.6, -9.4), (24.1, -22.3)])
sketch7.addConstraint(Sketcher.Constraint("Equal", 0, 1))
sketch7.addConstraint(Sketcher.Constraint("Equal", 1, 2))
sketch7.addConstraint(Sketcher.Constraint("Equal", 2, 3))
sketch7.addConstraint(Sketcher.Constraint("Perpendicular", 4, 5))
sketch7.addConstraint(Sketcher.Constraint("Perpendicular", 5, 6))
sketch7.addConstraint(Sketcher.Constraint("Perpendicular", 6, 7))
sketch7.addConstraint(Sketcher.Constraint("Diameter", 0, 1.3))
sketch7.addConstraint(Sketcher.Constraint("Angle", 4, Q("60 deg")))
sketch7.addConstraint(Sketcher.Constraint("Distance", 4, 15.0))
sketch7.addConstraint(Sketcher.Constraint("DistanceY", 0, 3, 1, 3, 7.5))
sketch7.addConstraint(Sketcher.Constraint("DistanceX", 2, 3, 1, 3, 10.5))
sketch7.addConstraint(Sketcher.Constraint("DistanceY", 3, 3, 2, 3, 7.5))
sketch7.addConstraint(Sketcher.Constraint("DistanceX", 3, 3, 0, 3, 10.5))
sketch7.addConstraint(Sketcher.Constraint("DistanceY", 5, 2, 4, 2, 11.999901))
sketch7.addConstraint(Sketcher.Constraint("DistanceX", -1, 1, 4, 2, 10.803432))
sketch7.addConstraint(Sketcher.Constraint("DistanceY", -1, 1, 4, 2, 2.645191))
sketch7.addConstraint(Sketcher.Constraint("DistanceX", 1, 3, 0, 3, 12.990381))
sketch7.addConstraint(Sketcher.Constraint("DistanceY", 6, 2, 0, 3, 17.838359))
sketch7.addConstraint(Sketcher.Constraint("DistanceX", -1, 1, 0, 3, 29.190927))
sketch7.addConstraint(Sketcher.Constraint("DistanceY", 2, 3, -1, 1, 15.193267))
pocket5 = body.newObject("PartDesign::Pocket", "Pocket004")
pocket5.Profile = sketch7
pocket5.Length = 6
pocket5.Reversed = True

sketch8 = body.newObject("Sketcher::SketchObject", "Sketch007")
sketch8.Placement = App.Placement(App.Vector(48.577594, 28.046287, 0), App.Rotation(App.Vector(0, 0, -1), App.Vector(-0.5, 0.866025404, 0), App.Vector(0.866025404, 0.5, 0), "ZXY"))
add_polygon(sketch8, [(0, -70), (0, -41), (-10, -41), (-10, -70)])
add_polygon(sketch8, [(0, -2), (0, 28), (-10, 28), (-10, -2)])
sketch8.addConstraint(Sketcher.Constraint("Vertical", 0))
sketch8.addConstraint(Sketcher.Constraint("Horizontal", 1))
sketch8.addConstraint(Sketcher.Constraint("Vertical", 2))
sketch8.addConstraint(Sketcher.Constraint("Horizontal", 3))
sketch8.addConstraint(Sketcher.Constraint("Vertical", 4))
sketch8.addConstraint(Sketcher.Constraint("Horizontal", 5))
sketch8.addConstraint(Sketcher.Constraint("Vertical", 6))
sketch8.addConstraint(Sketcher.Constraint("Horizontal", 7))
sketch8.addConstraint(Sketcher.Constraint("PointOnObject", 0, 2, -2))
sketch8.addConstraint(Sketcher.Constraint("PointOnObject", 4, 2, -2))
sketch8.addConstraint(Sketcher.Constraint("Vertical", 2, 2, 5, 2))
sketch8.addConstraint(Sketcher.Constraint("DistanceX", 1, 2, 1, 1, 10.0))
sketch8.addConstraint(Sketcher.Constraint("DistanceY", 1, 2, 6, 2, 38.12))
sketch8.addConstraint(Sketcher.Constraint("DistanceY", 0, 1, 0, 2, 29.809937))
sketch8.addConstraint(Sketcher.Constraint("DistanceY", 4, 1, 4, 2, 30.328112))
sketch8.addConstraint(Sketcher.Constraint("DistanceY", 0, 2, -1, 1, 40.570152))
pocket6 = body.newObject("PartDesign::Pocket", "Pocket005")
pocket6.Profile = sketch8
pocket6.Type = "ThroughAll"
pocket6.Reversed = True

sketch9 = body.newObject("Sketcher::SketchObject", "Sketch008")
sketch9.AttachmentSupport = (doc.getObject("XZ_Plane"), [""])
sketch9.MapMode = "FlatFace"
sketch9.AttachmentOffset = App.Placement(App.Vector(0, 0, 59.223224), App.Rotation())
add_polygon(sketch9, [(66, 10), (39, 10), (39, 0), (66, 0)])
add_polygon(sketch9, [(1, 10), (-25, 10), (-25, 0), (1, 0)])
sketch9.addConstraint(Sketcher.Constraint("Horizontal", 0))
sketch9.addConstraint(Sketcher.Constraint("Vertical", 1))
sketch9.addConstraint(Sketcher.Constraint("Horizontal", 2))
sketch9.addConstraint(Sketcher.Constraint("Vertical", 3))
sketch9.addConstraint(Sketcher.Constraint("Horizontal", 4))
sketch9.addConstraint(Sketcher.Constraint("Vertical", 5))
sketch9.addConstraint(Sketcher.Constraint("Horizontal", 6))
sketch9.addConstraint(Sketcher.Constraint("Vertical", 7))
sketch9.addConstraint(Sketcher.Constraint("PointOnObject", 1, 2, -1))
sketch9.addConstraint(Sketcher.Constraint("PointOnObject", 5, 2, -1))
sketch9.addConstraint(Sketcher.Constraint("Horizontal", 3, 2, 4, 2))
sketch9.addConstraint(Sketcher.Constraint("DistanceY", 1, 2, 1, 1, 10.0))
sketch9.addConstraint(Sketcher.Constraint("DistanceX", 6, 2, 1, 2, 38.12))
sketch9.addConstraint(Sketcher.Constraint("DistanceX", 0, 2, 0, 1, 27.497493))
sketch9.addConstraint(Sketcher.Constraint("DistanceX", 4, 2, 4, 1, 25.981246))
sketch9.addConstraint(Sketcher.Constraint("DistanceX", -1, 1, 0, 2, 38.76267))
pocket7 = body.newObject("PartDesign::Pocket", "Pocket006")
pocket7.Profile = sketch9
pocket7.Type = "ThroughAll"
pocket7.Reversed = True

doc.recompute()
